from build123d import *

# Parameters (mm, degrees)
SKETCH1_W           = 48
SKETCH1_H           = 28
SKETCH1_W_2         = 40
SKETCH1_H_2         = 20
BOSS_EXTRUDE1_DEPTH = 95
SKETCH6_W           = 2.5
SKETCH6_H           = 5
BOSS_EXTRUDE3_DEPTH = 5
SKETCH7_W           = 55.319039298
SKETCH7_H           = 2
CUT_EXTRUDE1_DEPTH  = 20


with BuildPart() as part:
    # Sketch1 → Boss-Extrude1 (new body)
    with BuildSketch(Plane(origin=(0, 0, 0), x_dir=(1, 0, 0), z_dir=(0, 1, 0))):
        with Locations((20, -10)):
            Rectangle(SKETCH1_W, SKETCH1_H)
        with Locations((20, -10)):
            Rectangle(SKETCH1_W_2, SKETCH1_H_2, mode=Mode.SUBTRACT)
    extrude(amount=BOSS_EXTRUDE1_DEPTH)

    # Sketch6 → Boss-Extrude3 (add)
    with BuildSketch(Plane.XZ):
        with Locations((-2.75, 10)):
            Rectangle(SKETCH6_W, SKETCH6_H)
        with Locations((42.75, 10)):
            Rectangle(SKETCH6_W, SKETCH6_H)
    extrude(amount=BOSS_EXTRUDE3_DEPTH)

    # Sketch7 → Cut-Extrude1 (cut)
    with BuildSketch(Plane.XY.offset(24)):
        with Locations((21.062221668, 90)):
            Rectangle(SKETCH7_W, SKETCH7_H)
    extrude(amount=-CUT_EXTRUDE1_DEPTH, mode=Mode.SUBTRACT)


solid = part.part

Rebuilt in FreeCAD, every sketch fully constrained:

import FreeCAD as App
import Part
import Sketcher


def add_polygon(sketch, points):
    """Adds a closed chain of lines whose ends are joined by coincident constraints."""
    first, n = sketch.GeometryCount, len(points)
    for a, b in zip(points, points[1:] + points[:1]):
        sketch.addGeometry(Part.LineSegment(App.Vector(*a, 0), App.Vector(*b, 0)), False)
    for i in range(n):
        sketch.addConstraint(Sketcher.Constraint("Coincident", first + i, 2, first + (i + 1) % n, 1))

doc = App.newDocument("Part")
body = doc.addObject("PartDesign::Body", "Body")

# Sketch on XZ plane
sketch1 = body.newObject("Sketcher::SketchObject", "Sketch")
sketch1.AttachmentSupport = (doc.getObject("XZ_Plane"), [""])
sketch1.MapMode = "FlatFace"
add_polygon(sketch1, [(-4, -4), (-4, 24), (44, 24), (44, -4)])  # lines 0-3
add_polygon(sketch1, [(40, 20), (0, 20), (0, 0), (40, 0)])  # lines 4-7
sketch1.addConstraint([
    Sketcher.Constraint("Vertical", 0),
    Sketcher.Constraint("Horizontal", 1),
    Sketcher.Constraint("Vertical", 2),
    Sketcher.Constraint("Horizontal", 3),
    Sketcher.Constraint("Horizontal", 4),
    Sketcher.Constraint("Vertical", 5),
    Sketcher.Constraint("Horizontal", 6),
    Sketcher.Constraint("Vertical", 7),
    Sketcher.Constraint("Coincident", 5, 2, -1, 1),
    Sketcher.Constraint("DistanceX", 1, 1, 1, 2, 48.0),
    Sketcher.Constraint("DistanceX", 4, 2, 4, 1, 40.0),
    Sketcher.Constraint("DistanceY", 0, 1, 0, 2, 28.0),
    Sketcher.Constraint("DistanceY", 5, 2, 5, 1, 20.0),
    Sketcher.Constraint("DistanceX", 0, 2, -1, 1, 4.0),
    Sketcher.Constraint("DistanceY", -1, 1, 0, 2, 24.0),
])
pad1 = body.newObject("PartDesign::Pad", "Pad")
pad1.Profile = sketch1
pad1.Length = 95
pad1.Reversed = True

# Sketch on XZ plane
sketch2 = body.newObject("Sketcher::SketchObject", "Sketch001")
sketch2.AttachmentSupport = (doc.getObject("XZ_Plane"), [""])
sketch2.MapMode = "FlatFace"
add_polygon(sketch2, [(-4, 12.5), (-4, 7.5), (-1.5, 7.5), (-1.5, 12.5)])  # lines 0-3
add_polygon(sketch2, [(41.5, 12.5), (41.5, 7.5), (44, 7.5), (44, 12.5)])  # lines 4-7
sketch2.addConstraint([
    Sketcher.Constraint("Vertical", 0),
    Sketcher.Constraint("Horizontal", 1),
    Sketcher.Constraint("Vertical", 2),
    Sketcher.Constraint("Horizontal", 3),
    Sketcher.Constraint("Vertical", 4),
    Sketcher.Constraint("Horizontal", 5),
    Sketcher.Constraint("Vertical", 6),
    Sketcher.Constraint("Horizontal", 7),
    Sketcher.Constraint("Horizontal", 1, 2, 4, 2),
    Sketcher.Constraint("Horizontal", 3, 2, 6, 2),
    Sketcher.Constraint("Equal", 3, 5),
    Sketcher.Constraint("DistanceY", 0, 2, 0, 1, 5.0),
    Sketcher.Constraint("DistanceX", 1, 1, 1, 2, 2.5),
    Sketcher.Constraint("DistanceX", 0, 2, -1, 1, 4.0),
    Sketcher.Constraint("DistanceX", -1, 1, 5, 2, 44.0),
    Sketcher.Constraint("DistanceY", -1, 1, 0, 2, 7.5),
])
pad2 = body.newObject("PartDesign::Pad", "Pad001")
pad2.Profile = sketch2
pad2.Length = 5

# Sketch on XY plane
sketch3 = body.newObject("Sketcher::SketchObject", "Sketch002")
sketch3.AttachmentSupport = (doc.getObject("XY_Plane"), [""])
sketch3.MapMode = "FlatFace"
sketch3.AttachmentOffset = App.Placement(App.Vector(0, 0, 24), App.Rotation())
add_polygon(sketch3, [(-6.6, 91), (-6.6, 89), (48.7, 89), (48.7, 91)])  # lines 0-3
sketch3.addConstraint([
    Sketcher.Constraint("Vertical", 0),
    Sketcher.Constraint("Horizontal", 1),
    Sketcher.Constraint("Vertical", 2),
    Sketcher.Constraint("Horizontal", 3),
    Sketcher.Constraint("DistanceY", 0, 2, 0, 1, 2.0),
    Sketcher.Constraint("DistanceY", -1, 1, 0, 2, 89.0),
    Sketcher.Constraint("DistanceX", 1, 1, 1, 2, 55.319039),
    Sketcher.Constraint("DistanceX", -1, 1, 1, 2, 48.721741),
])
pocket1 = body.newObject("PartDesign::Pocket", "Pocket")
pocket1.Profile = sketch3
pocket1.Length = 20

doc.recompute()
